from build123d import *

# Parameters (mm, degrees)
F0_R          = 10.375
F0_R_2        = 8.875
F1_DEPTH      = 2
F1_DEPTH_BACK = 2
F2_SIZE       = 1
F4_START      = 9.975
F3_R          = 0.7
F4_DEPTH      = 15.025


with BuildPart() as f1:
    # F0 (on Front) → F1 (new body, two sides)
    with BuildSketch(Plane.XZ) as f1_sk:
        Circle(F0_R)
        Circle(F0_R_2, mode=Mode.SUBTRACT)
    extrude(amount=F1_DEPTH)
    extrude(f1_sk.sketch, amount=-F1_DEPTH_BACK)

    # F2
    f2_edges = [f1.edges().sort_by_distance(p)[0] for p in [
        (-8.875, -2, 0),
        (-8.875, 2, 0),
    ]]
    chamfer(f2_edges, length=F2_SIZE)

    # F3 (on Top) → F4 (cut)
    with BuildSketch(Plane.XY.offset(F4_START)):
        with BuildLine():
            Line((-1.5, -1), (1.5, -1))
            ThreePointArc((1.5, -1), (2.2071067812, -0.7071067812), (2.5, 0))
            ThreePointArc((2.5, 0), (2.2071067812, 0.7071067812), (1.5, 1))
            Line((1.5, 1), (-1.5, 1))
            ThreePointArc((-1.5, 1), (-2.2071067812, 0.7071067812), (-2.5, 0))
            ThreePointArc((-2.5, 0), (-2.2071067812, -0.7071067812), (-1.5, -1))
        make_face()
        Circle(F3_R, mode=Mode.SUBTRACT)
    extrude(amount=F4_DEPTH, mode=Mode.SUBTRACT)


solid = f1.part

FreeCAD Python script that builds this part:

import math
import FreeCAD as App
import Part
import Sketcher
from FreeCAD import Vector
Q = App.Units.Quantity


def edges_at(feature, points):
    """Names of the edges that pass closest to the given points."""
    edges = feature.Shape.Edges
    near = lambda p: min(range(len(edges)), key=lambda i: edges[i].distToShape(Part.Vertex(*p))[0])
    return sorted({f"Edge{near(p) + 1}" for p in points})

doc = App.newDocument("Part")
body = doc.addObject("PartDesign::Body", "Body")

# Sketch on XZ plane
sketch1 = body.newObject("Sketcher::SketchObject", "Sketch")
sketch1.AttachmentSupport = (doc.getObject("XZ_Plane"), [""])
sketch1.MapMode = "FlatFace"
sketch1.addGeometry(Part.Circle(Vector(0, 0, 0), Vector(0, 0, 1), 10), False)
sketch1.addGeometry(Part.Circle(Vector(0, 0, 0), Vector(0, 0, 1), 9), False)
sketch1.addConstraint(Sketcher.Constraint("Coincident", 0, 3, -1, 1))
sketch1.addConstraint(Sketcher.Constraint("Coincident", 1, 3, -1, 1))
sketch1.addConstraint(Sketcher.Constraint("Diameter", 0, Q("20.75 mm")))
sketch1.addConstraint(Sketcher.Constraint("Diameter", 1, Q("17.75 mm")))
pad1 = body.newObject("PartDesign::Pad", "Pad")
pad1.Profile = sketch1
pad1.Type = "TwoLengths"
pad1.Length = 2
pad1.Length2 = 2
doc.recompute()

chamfer = body.newObject("PartDesign::Chamfer", "Chamfer")
chamfer.Base = (pad1, edges_at(pad1, [(-8.875, -2, 0), (-8.875, 2, 0)]))
chamfer.Size = 1

# Sketch on XY plane
sketch2 = body.newObject("Sketcher::SketchObject", "Sketch001")
sketch2.AttachmentSupport = (doc.getObject("XY_Plane"), [""])
sketch2.MapMode = "FlatFace"
sketch2.AttachmentOffset = App.Placement(Vector(0, 0, 9.975), App.Rotation())
sketch2.addGeometry(Part.LineSegment(Vector(-1.5, -1, 0), Vector(1.5, -1, 0)), False)
sketch2.addGeometry(Part.ArcOfCircle(Part.Circle(Vector(1.5, 0, 0), Vector(0, 0, 1), 1), math.radians(-90), math.radians(0)), False)
sketch2.addGeometry(Part.ArcOfCircle(Part.Circle(Vector(1.5, 0, 0), Vector(0, 0, 1), 1), math.radians(0), math.radians(90)), False)
sketch2.addGeometry(Part.LineSegment(Vector(1.5, 1, 0), Vector(-1.5, 1, 0)), False)
sketch2.addGeometry(Part.ArcOfCircle(Part.Circle(Vector(-1.5, 0, 0), Vector(0, 0, 1), 1), math.radians(90), math.radians(180)), False)
sketch2.addGeometry(Part.ArcOfCircle(Part.Circle(Vector(-1.5, 0, 0), Vector(0, 0, 1), 1), math.radians(180), math.radians(270)), False)
sketch2.addGeometry(Part.Circle(Vector(0, 0, 0), Vector(0, 0, 1), 0.7), False)
sketch2.addConstraint(Sketcher.Constraint("Tangent", 0, 2, 1, 1))
sketch2.addConstraint(Sketcher.Constraint("Tangent", 1, 2, 2, 1))
sketch2.addConstraint(Sketcher.Constraint("Tangent", 2, 2, 3, 1))
sketch2.addConstraint(Sketcher.Constraint("Tangent", 3, 2, 4, 1))
sketch2.addConstraint(Sketcher.Constraint("Tangent", 4, 2, 5, 1))
sketch2.addConstraint(Sketcher.Constraint("Tangent", 5, 2, 0, 1))
sketch2.addConstraint(Sketcher.Constraint("Horizontal", 0))
sketch2.addConstraint(Sketcher.Constraint("Horizontal", 3))
sketch2.addConstraint(Sketcher.Constraint("Coincident", 6, 3, -1, 1))
sketch2.addConstraint(Sketcher.Constraint("Equal", 1, 2))
sketch2.addConstraint(Sketcher.Constraint("Equal", 2, 4))
sketch2.addConstraint(Sketcher.Constraint("Symmetric", 1, 3, 4, 3, -1, 1))
sketch2.addConstraint(Sketcher.Constraint("PointOnObject", 1, 2, -1))
sketch2.addConstraint(Sketcher.Constraint("PointOnObject", 4, 2, -1))
sketch2.addConstraint(Sketcher.Constraint("Radius", 1, Q("1 mm")))
sketch2.addConstraint(Sketcher.Constraint("Diameter", 6, Q("1.4 mm")))
sketch2.addConstraint(Sketcher.Constraint("DistanceX", 0, 1, 0, 2, Q("3 mm")))
pocket1 = body.newObject("PartDesign::Pocket", "Pocket")
pocket1.Profile = sketch2
pocket1.Length = 15.025
pocket1.Reversed = True

doc.recompute()
